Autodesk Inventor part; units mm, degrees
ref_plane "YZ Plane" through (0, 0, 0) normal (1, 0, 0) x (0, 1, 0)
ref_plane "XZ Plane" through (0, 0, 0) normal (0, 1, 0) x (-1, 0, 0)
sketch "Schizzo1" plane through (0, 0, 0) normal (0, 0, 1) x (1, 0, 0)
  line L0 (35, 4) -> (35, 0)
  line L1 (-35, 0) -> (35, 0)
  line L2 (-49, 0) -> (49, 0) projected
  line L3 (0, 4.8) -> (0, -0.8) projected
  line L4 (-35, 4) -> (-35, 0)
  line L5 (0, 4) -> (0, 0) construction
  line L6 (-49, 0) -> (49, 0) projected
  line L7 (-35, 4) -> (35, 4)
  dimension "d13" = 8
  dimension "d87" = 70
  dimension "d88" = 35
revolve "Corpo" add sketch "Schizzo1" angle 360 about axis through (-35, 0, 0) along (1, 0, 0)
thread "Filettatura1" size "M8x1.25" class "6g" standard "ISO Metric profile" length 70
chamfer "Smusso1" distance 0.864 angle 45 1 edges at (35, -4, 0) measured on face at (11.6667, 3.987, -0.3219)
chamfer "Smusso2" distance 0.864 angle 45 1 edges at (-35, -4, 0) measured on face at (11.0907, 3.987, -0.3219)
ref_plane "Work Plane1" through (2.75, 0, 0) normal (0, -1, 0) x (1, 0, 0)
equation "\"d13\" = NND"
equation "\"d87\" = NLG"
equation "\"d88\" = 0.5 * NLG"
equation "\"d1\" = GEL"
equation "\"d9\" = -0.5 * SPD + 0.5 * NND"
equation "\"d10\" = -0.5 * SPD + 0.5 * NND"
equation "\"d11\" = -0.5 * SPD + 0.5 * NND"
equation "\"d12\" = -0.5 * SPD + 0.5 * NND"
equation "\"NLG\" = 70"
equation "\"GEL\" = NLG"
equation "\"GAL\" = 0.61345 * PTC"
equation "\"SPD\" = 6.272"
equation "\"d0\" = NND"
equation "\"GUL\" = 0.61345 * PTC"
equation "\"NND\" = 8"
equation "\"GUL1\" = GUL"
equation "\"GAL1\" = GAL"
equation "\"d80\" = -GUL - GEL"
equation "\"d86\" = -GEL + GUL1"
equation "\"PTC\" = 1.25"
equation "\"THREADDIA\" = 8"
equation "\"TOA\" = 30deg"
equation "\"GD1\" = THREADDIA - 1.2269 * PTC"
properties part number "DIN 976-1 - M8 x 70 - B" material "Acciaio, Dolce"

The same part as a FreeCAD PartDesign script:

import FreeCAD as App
import Part
import Sketcher
Q = App.Units.Quantity


def edges_at(feature, points):
    """Names of the edges that pass closest to the given points."""
    edges = feature.Shape.Edges
    near = lambda p: min(range(len(edges)), key=lambda i: edges[i].distToShape(Part.Vertex(*p))[0])
    return sorted({f"Edge{near(p) + 1}" for p in points})


def add_polygon(sketch, points):
    """Adds a closed chain of lines whose ends are joined by coincident constraints."""
    first, n = sketch.GeometryCount, len(points)
    for a, b in zip(points, points[1:] + points[:1]):
        sketch.addGeometry(Part.LineSegment(App.Vector(*a, 0), App.Vector(*b, 0)), False)
    for i in range(n):
        sketch.addConstraint(Sketcher.Constraint("Coincident", first + i, 2, first + (i + 1) % n, 1))

doc = App.newDocument("Part")
body = doc.addObject("PartDesign::Body", "Body")

sketch1 = body.newObject("Sketcher::SketchObject", "Sketch")
sketch1.AttachmentSupport = (doc.getObject("XY_Plane"), [""])
sketch1.MapMode = "FlatFace"
add_polygon(sketch1, [(35, 0), (35, 4), (-35, 4), (-35, 0)])
sketch1.addConstraint([
    Sketcher.Constraint("Vertical", 0),
    Sketcher.Constraint("Horizontal", 1),
    Sketcher.Constraint("Vertical", 2),
    Sketcher.Constraint("Horizontal", 3),
    Sketcher.Constraint("Symmetric", 2, 2, 3, 2, -1, 1),
    Sketcher.Constraint("DistanceX", 1, 2, 1, 1, Q("70 mm")),
    Sketcher.Constraint("DistanceY", 0, 1, 0, 2, Q("4 mm")),
])
revolution = body.newObject("PartDesign::Revolution", "Revolution")
revolution.Profile = sketch1
revolution.ReferenceAxis = (sketch1, ["H_Axis"])
revolution.Angle = 360
doc.recompute()

chamfer = body.newObject("PartDesign::Chamfer", "Chamfer")
chamfer.Base = (revolution, edges_at(revolution, [(35, -4, 0)]))
chamfer.Size = 0.864
doc.recompute()

chamfer2 = body.newObject("PartDesign::Chamfer", "Chamfer001")
chamfer2.Base = (chamfer, edges_at(chamfer, [(-35, -4, 0)]))
chamfer2.Size = 0.864

doc.recompute()
